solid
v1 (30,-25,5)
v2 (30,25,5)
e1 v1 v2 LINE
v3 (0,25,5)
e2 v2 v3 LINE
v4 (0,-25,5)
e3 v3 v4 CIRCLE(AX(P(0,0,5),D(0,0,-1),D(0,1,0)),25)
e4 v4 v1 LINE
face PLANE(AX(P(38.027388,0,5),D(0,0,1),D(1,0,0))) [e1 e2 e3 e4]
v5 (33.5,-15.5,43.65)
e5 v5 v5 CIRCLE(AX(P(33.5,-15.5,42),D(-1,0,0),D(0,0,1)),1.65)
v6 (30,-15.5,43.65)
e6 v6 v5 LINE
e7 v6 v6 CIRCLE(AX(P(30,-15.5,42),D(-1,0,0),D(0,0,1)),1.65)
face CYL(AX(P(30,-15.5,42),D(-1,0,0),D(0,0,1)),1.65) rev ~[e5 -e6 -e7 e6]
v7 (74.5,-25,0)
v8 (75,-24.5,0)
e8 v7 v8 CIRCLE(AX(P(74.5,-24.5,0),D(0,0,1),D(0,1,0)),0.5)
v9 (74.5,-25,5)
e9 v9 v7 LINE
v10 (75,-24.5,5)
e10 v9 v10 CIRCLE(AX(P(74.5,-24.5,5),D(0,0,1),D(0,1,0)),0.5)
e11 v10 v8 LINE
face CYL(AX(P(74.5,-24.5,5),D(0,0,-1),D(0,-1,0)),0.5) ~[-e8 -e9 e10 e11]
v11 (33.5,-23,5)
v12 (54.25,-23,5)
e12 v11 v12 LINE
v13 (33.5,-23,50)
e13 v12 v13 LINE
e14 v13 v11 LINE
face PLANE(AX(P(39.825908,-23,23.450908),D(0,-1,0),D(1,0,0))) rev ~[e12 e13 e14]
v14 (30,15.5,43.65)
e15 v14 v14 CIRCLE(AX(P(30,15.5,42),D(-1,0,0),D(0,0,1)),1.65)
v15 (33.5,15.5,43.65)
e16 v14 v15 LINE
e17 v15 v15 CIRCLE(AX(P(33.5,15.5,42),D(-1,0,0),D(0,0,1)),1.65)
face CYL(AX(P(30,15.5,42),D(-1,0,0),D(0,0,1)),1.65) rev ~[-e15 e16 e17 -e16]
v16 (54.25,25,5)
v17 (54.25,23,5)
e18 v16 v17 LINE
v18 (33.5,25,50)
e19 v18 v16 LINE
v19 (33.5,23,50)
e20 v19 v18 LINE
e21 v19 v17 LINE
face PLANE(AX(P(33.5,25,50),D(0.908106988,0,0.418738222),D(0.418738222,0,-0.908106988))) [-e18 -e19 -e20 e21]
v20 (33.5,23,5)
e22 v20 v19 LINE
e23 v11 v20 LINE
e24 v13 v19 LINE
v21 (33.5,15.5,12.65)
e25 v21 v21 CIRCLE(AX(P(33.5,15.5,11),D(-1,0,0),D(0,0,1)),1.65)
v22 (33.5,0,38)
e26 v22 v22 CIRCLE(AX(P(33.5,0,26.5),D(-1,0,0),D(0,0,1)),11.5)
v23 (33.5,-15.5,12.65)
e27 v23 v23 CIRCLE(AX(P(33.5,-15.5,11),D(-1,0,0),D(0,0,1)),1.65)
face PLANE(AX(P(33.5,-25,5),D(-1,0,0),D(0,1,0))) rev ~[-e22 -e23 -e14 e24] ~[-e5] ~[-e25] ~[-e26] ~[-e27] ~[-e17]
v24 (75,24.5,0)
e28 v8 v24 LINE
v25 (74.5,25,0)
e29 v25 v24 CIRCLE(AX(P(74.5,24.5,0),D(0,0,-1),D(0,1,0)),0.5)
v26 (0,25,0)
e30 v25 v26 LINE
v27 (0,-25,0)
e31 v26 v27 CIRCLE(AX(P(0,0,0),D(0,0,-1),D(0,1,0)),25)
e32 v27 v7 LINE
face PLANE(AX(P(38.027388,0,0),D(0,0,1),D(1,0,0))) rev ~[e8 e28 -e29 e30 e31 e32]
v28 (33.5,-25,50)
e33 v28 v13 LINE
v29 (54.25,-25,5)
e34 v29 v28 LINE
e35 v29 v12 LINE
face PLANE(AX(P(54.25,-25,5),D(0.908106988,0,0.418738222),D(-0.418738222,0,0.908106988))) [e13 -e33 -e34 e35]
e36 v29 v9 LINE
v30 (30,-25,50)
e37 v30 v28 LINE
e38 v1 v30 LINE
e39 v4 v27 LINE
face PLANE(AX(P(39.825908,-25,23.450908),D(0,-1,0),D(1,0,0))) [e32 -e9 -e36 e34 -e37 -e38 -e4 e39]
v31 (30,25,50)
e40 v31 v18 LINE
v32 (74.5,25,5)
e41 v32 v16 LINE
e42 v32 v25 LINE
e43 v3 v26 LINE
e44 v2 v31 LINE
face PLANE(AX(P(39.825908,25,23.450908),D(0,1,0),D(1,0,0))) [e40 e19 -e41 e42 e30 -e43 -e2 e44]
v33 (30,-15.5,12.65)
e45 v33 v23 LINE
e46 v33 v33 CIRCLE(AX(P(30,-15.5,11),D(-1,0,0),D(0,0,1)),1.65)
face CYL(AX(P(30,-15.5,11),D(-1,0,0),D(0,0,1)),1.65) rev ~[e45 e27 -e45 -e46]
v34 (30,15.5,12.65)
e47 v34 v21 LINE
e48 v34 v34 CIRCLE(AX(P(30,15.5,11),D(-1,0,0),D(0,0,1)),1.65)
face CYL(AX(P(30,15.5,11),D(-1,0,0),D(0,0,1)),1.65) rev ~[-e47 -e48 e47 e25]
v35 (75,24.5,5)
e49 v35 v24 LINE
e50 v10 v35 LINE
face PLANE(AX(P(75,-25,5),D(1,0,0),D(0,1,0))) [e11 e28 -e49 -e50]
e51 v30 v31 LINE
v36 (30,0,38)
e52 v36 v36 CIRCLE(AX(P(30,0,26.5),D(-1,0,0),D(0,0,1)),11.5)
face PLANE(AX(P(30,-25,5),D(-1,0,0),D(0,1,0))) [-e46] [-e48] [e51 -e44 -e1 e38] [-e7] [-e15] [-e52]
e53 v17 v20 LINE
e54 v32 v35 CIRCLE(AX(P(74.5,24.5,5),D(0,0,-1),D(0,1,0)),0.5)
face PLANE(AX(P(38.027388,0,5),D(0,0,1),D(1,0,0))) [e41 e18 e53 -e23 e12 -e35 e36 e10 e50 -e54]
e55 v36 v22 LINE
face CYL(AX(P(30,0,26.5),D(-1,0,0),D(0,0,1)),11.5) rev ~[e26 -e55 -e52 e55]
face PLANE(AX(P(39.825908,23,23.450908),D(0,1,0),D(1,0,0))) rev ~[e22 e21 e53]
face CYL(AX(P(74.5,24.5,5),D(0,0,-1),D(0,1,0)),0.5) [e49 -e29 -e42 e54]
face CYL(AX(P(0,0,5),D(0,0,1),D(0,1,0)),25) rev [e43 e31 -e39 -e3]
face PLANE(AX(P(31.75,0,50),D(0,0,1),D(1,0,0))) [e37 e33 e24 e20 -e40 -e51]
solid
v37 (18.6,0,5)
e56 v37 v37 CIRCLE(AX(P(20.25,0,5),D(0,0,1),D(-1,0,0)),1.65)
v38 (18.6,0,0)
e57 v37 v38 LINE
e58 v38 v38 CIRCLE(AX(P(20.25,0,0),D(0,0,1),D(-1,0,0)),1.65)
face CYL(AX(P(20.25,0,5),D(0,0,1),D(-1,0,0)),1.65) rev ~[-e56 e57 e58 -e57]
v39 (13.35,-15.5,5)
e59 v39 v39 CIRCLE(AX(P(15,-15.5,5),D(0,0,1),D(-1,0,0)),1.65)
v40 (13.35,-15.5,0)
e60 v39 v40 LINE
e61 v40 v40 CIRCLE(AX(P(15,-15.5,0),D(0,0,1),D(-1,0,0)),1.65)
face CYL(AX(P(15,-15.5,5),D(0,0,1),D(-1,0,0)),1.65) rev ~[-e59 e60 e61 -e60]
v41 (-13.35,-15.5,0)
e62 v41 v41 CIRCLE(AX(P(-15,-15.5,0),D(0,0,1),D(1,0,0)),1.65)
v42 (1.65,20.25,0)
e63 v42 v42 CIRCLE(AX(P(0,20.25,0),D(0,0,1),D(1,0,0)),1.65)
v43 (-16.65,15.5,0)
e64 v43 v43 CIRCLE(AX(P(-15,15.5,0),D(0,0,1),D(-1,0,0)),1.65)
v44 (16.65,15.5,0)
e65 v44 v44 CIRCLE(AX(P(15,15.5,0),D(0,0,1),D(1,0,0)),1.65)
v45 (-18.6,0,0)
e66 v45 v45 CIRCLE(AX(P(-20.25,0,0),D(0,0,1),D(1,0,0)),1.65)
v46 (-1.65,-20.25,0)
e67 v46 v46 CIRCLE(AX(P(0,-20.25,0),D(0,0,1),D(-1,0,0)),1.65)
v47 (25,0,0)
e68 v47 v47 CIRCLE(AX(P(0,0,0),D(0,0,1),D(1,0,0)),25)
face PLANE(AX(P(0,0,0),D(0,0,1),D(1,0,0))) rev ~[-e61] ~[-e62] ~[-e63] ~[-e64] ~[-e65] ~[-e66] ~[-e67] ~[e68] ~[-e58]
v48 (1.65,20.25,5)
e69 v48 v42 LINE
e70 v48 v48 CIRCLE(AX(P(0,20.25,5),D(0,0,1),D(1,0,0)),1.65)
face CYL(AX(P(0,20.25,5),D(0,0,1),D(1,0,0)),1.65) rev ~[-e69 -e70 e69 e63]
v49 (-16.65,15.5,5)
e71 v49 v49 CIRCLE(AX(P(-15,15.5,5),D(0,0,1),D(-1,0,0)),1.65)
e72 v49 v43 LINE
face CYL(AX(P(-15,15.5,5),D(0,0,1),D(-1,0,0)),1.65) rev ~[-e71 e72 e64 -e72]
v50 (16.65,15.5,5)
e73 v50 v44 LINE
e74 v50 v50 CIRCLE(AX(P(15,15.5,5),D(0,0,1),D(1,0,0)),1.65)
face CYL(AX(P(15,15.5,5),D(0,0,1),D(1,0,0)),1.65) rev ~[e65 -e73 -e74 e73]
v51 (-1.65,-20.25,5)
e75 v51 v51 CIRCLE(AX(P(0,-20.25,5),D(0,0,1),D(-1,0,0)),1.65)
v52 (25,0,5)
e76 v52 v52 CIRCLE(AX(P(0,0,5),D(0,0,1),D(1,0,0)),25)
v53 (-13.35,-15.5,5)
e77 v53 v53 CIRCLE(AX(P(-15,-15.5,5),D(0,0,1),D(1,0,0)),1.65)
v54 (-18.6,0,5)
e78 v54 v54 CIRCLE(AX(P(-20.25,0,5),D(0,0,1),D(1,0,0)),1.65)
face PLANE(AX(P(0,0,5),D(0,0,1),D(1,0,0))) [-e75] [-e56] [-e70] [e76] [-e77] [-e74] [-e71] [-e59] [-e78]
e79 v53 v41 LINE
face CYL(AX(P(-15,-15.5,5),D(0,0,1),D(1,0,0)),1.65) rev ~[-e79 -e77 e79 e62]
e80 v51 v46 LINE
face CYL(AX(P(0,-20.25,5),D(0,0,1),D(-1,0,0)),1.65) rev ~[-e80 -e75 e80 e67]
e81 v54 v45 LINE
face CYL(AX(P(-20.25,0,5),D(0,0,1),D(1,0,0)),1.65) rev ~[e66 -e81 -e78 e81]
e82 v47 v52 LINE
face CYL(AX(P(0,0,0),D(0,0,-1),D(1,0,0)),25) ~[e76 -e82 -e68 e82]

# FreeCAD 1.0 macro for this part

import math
import FreeCAD as App
import Part
import Sketcher


def edges_at(feature, points):
    """Names of the edges that pass closest to the given points."""
    edges = feature.Shape.Edges
    near = lambda p: min(range(len(edges)), key=lambda i: edges[i].distToShape(Part.Vertex(*p))[0])
    return sorted({f"Edge{near(p) + 1}" for p in points})


def add_polygon(sketch, points):
    """Adds a closed chain of lines whose ends are joined by coincident constraints."""
    first, n = sketch.GeometryCount, len(points)
    for a, b in zip(points, points[1:] + points[:1]):
        sketch.addGeometry(Part.LineSegment(App.Vector(*a, 0), App.Vector(*b, 0)), False)
    for i in range(n):
        sketch.addConstraint(Sketcher.Constraint("Coincident", first + i, 2, first + (i + 1) % n, 1))

doc = App.newDocument("Part")
body = doc.addObject("PartDesign::Body", "Body")

# Sketch on XY plane
sketch1 = body.newObject("Sketcher::SketchObject", "Sketch")
sketch1.AttachmentSupport = (doc.getObject("XY_Plane"), [""])
sketch1.MapMode = "FlatFace"
sketch1.addGeometry(Part.Circle(App.Vector(0, 0, 0), App.Vector(0, 0, 1), 25), False)
sketch1.addConstraint([
    Sketcher.Constraint("Coincident", 0, 3, -1, 1),
    Sketcher.Constraint("Diameter", 0, 50.0),
])
pad1 = body.newObject("PartDesign::Pad", "Pad")
pad1.Profile = sketch1
pad1.Length = 5

# Sketch on XY plane
sketch2 = body.newObject("Sketcher::SketchObject", "Sketch001")
sketch2.AttachmentSupport = (doc.getObject("XY_Plane"), [""])
sketch2.MapMode = "FlatFace"
sketch2.AttachmentOffset = App.Placement(App.Vector(0, 0, 5), App.Rotation())
sketch2.addGeometry([
    Part.Circle(App.Vector(0, 20.2, 0), App.Vector(0, 0, 1), 1.6),  # 0
    Part.Circle(App.Vector(-20.2, 0, 0), App.Vector(0, 0, 1), 1.6),  # 1
    Part.Circle(App.Vector(0, -20.2, 0), App.Vector(0, 0, 1), 1.6),  # 2
    Part.Circle(App.Vector(20.2, 0, 0), App.Vector(0, 0, 1), 1.6),  # 3
    Part.Circle(App.Vector(15, 15.5, 0), App.Vector(0, 0, 1), 1.6),  # 4
    Part.Circle(App.Vector(15, -15.5, 0), App.Vector(0, 0, 1), 1.6),  # 5
    Part.Circle(App.Vector(-15, -15.5, 0), App.Vector(0, 0, 1), 1.6),  # 6
    Part.Circle(App.Vector(-15, 15.5, 0), App.Vector(0, 0, 1), 1.6),  # 7
], False)
sketch2.addConstraint([
    Sketcher.Constraint("Equal", 0, 1),
    Sketcher.Constraint("Equal", 1, 2),
    Sketcher.Constraint("Equal", 2, 3),
    Sketcher.Constraint("Equal", 3, 4),
    Sketcher.Constraint("Equal", 4, 5),
    Sketcher.Constraint("Equal", 5, 6),
    Sketcher.Constraint("Equal", 6, 7),
    Sketcher.Constraint("Symmetric", 0, 3, 2, 3, -1, 1),
    Sketcher.Constraint("Symmetric", 1, 3, 3, 3, -1, 1),
    Sketcher.Constraint("Symmetric", 4, 3, 6, 3, -1, 1),
    Sketcher.Constraint("Symmetric", 5, 3, 7, 3, -1, 1),
    Sketcher.Constraint("Symmetric", 5, 3, 6, 3, -2),
    Sketcher.Constraint("PointOnObject", 0, 3, -2),
    Sketcher.Constraint("PointOnObject", 1, 3, -1),
    Sketcher.Constraint("Diameter", 0, 3.3),
    Sketcher.Constraint("DistanceX", -1, 1, 4, 3, 15.0),
    Sketcher.Constraint("DistanceY", 5, 3, 4, 3, 31.0),
    Sketcher.Constraint("DistanceY", 2, 3, 0, 3, 40.5),
    Sketcher.Constraint("DistanceX", 1, 3, 3, 3, 40.5),
])
pocket1 = body.newObject("PartDesign::Pocket", "Pocket")
pocket1.Profile = sketch2
pocket1.Length = 5
body2 = doc.addObject("PartDesign::Body", "Body001")

# Sketch on XY plane
sketch3 = body2.newObject("Sketcher::SketchObject", "Sketch002")
sketch3.AttachmentSupport = (doc.getObject("XY_Plane001"), [""])
sketch3.MapMode = "FlatFace"
sketch3.AttachmentOffset = App.Placement(App.Vector(0, 0, 5), App.Rotation())
sketch3.addGeometry([
    Part.ArcOfCircle(Part.Circle(App.Vector(0, 0, 0), App.Vector(0, 0, 1), 25), math.radians(-90), math.radians(90)),
    Part.LineSegment(App.Vector(0, -25, 0), App.Vector(75, -25, 0)),
    Part.LineSegment(App.Vector(75, -25, 0), App.Vector(75, 25, 0)),
    Part.LineSegment(App.Vector(75, 25, 0), App.Vector(0, 25, 0)),
], False)
sketch3.addConstraint([
    Sketcher.Constraint("Tangent", 0, 1, 1, 1),
    Sketcher.Constraint("Coincident", 1, 2, 2, 1),
    Sketcher.Constraint("Coincident", 2, 2, 3, 1),
    Sketcher.Constraint("Tangent", 3, 2, 0, 2),
    Sketcher.Constraint("Horizontal", 1),
    Sketcher.Constraint("Vertical", 2),
    Sketcher.Constraint("Horizontal", 3),
    Sketcher.Constraint("Coincident", 0, 3, -1, 1),
    Sketcher.Constraint("Radius", 0, 25.0),
    Sketcher.Constraint("DistanceX", 1, 1, 1, 2, 75.0),
])
pad2 = body2.newObject("PartDesign::Pad", "Pad001")
pad2.Profile = sketch3
pad2.Length = 5
pad2.Reversed = True

# Sketch on XY plane
sketch4 = body2.newObject("Sketcher::SketchObject", "Sketch003")
sketch4.AttachmentSupport = (doc.getObject("XY_Plane001"), [""])
sketch4.MapMode = "FlatFace"
sketch4.AttachmentOffset = App.Placement(App.Vector(0, 0, 5), App.Rotation())
add_polygon(sketch4, [(30, 25), (30, -25), (33.5, -25), (33.5, 25)])  # lines 0-3
sketch4.addConstraint([
    Sketcher.Constraint("Vertical", 0),
    Sketcher.Constraint("Horizontal", 1),
    Sketcher.Constraint("Vertical", 2),
    Sketcher.Constraint("Horizontal", 3),
    Sketcher.Constraint("DistanceY", 0, 2, 0, 1, 50.0),
    Sketcher.Constraint("DistanceX", 1, 1, 1, 2, 3.5),
    Sketcher.Constraint("DistanceX", -1, 1, 0, 2, 30.0),
    Sketcher.Constraint("DistanceY", 0, 2, -1, 1, 25.0),
])
pad3 = body2.newObject("PartDesign::Pad", "Pad002")
pad3.Profile = sketch4
pad3.Length = 45

# Sketch on YZ plane
sketch5 = body2.newObject("Sketcher::SketchObject", "Sketch004")
sketch5.AttachmentSupport = (doc.getObject("YZ_Plane001"), [""])
sketch5.MapMode = "FlatFace"
sketch5.AttachmentOffset = App.Placement(App.Vector(0, 0, 30), App.Rotation())
sketch5.addGeometry([
    Part.Circle(App.Vector(0, 26.5, 0), App.Vector(0, 0, 1), 11.5),  # 0
    Part.Circle(App.Vector(15.5, 42, 0), App.Vector(0, 0, 1), 1.6),  # 1
    Part.Circle(App.Vector(-15.5, 42, 0), App.Vector(0, 0, 1), 1.6),  # 2
    Part.Circle(App.Vector(-15.5, 11, 0), App.Vector(0, 0, 1), 1.6),  # 3
    Part.Circle(App.Vector(15.5, 11, 0), App.Vector(0, 0, 1), 1.6),  # 4
], False)
sketch5.addConstraint([
    Sketcher.Constraint("Equal", 1, 2),
    Sketcher.Constraint("Equal", 2, 3),
    Sketcher.Constraint("Equal", 3, 4),
    Sketcher.Constraint("Symmetric", 1, 3, 2, 3, -2),
    Sketcher.Constraint("Symmetric", 3, 3, 4, 3, -2),
    Sketcher.Constraint("PointOnObject", 0, 3, -2),
    Sketcher.Constraint("Vertical", 2, 3, 3, 3),
    Sketcher.Constraint("Diameter", 0, 23.0),
    Sketcher.Constraint("Diameter", 1, 3.3),
    Sketcher.Constraint("DistanceY", -1, 1, 1, 3, 42.0),
    Sketcher.Constraint("DistanceY", -1, 1, 3, 3, 11.0),
    Sketcher.Constraint("DistanceX", 2, 3, 1, 3, 31.0),
    Sketcher.Constraint("DistanceY", -1, 1, 0, 3, 26.5),
])
pocket2 = body2.newObject("PartDesign::Pocket", "Pocket001")
pocket2.Profile = sketch5
pocket2.Length = 45
pocket2.Reversed = True

# Sketch on XZ plane
sketch6 = body2.newObject("Sketcher::SketchObject", "Sketch005")
sketch6.AttachmentSupport = (doc.getObject("XZ_Plane001"), [""])
sketch6.MapMode = "FlatFace"
sketch6.AttachmentOffset = App.Placement(App.Vector(0, 0, 25), App.Rotation())
add_polygon(sketch6, [(34, 5), (54, 5), (34, 50)])  # lines 0-2
sketch6.addConstraint([
    Sketcher.Constraint("Horizontal", 0),
    Sketcher.Constraint("Vertical", 2),
    Sketcher.Constraint("DistanceY", 2, 2, 2, 1, 45.0),
    Sketcher.Constraint("DistanceY", -1, 1, 0, 2, 5.0),
    Sketcher.Constraint("DistanceX", 0, 1, 0, 2, 20.75),
    Sketcher.Constraint("DistanceX", -1, 1, 1, 2, 33.5),
])
pad4 = body2.newObject("PartDesign::Pad", "Pad003")
pad4.Profile = sketch6
pad4.Length = 2
pad4.Reversed = True

# Sketch on XZ plane
sketch7 = body2.newObject("Sketcher::SketchObject", "Sketch006")
sketch7.AttachmentSupport = (doc.getObject("XZ_Plane001"), [""])
sketch7.MapMode = "FlatFace"
sketch7.AttachmentOffset = App.Placement(App.Vector(0, 0, -25), App.Rotation())
add_polygon(sketch7, [(34, 50), (54, 5), (34, 5)])  # lines 0-2
sketch7.addConstraint([
    Sketcher.Constraint("Horizontal", 1),
    Sketcher.Constraint("Vertical", 2),
    Sketcher.Constraint("DistanceY", 2, 1, 2, 2, 45.0),
    Sketcher.Constraint("DistanceY", -1, 1, 0, 2, 5.0),
    Sketcher.Constraint("DistanceX", 1, 2, 1, 1, 20.75),
    Sketcher.Constraint("DistanceX", -1, 1, 1, 2, 33.5),
])
pad5 = body2.newObject("PartDesign::Pad", "Pad004")
pad5.Profile = sketch7
pad5.Length = 2
doc.recompute()

fillet = body2.newObject("PartDesign::Fillet", "Fillet")
fillet.Base = (pad5, edges_at(pad5, [(75, 25, 2.5), (75, -25, 2.5)]))
fillet.Radius = 0.5

doc.recompute()
